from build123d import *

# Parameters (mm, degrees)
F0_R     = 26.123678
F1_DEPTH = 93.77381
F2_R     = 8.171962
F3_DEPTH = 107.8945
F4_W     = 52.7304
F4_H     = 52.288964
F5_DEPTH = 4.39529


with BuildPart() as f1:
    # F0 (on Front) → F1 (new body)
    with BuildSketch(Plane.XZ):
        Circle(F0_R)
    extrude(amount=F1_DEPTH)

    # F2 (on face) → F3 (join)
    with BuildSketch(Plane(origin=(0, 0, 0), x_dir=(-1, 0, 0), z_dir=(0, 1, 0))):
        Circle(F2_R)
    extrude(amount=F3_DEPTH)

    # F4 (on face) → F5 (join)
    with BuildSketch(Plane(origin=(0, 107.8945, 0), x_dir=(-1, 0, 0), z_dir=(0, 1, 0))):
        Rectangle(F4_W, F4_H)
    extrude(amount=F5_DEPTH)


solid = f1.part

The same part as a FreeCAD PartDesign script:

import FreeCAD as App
import Part
import Sketcher

V = App.Vector
Q = App.Units.Quantity


def add_polygon(sketch, points):
    """Adds a closed chain of lines whose ends are joined by coincident constraints."""
    first, n = sketch.GeometryCount, len(points)
    for a, b in zip(points, points[1:] + points[:1]):
        sketch.addGeometry(Part.LineSegment(App.Vector(*a, 0), App.Vector(*b, 0)), False)
    for i in range(n):
        sketch.addConstraint(Sketcher.Constraint("Coincident", first + i, 2, first + (i + 1) % n, 1))

doc = App.newDocument("Part")
body = doc.addObject("PartDesign::Body", "Body")

# Sketch on XZ plane
sketch1 = doc.addObject("Sketcher::SketchObject", "Sketch")
body.addObject(sketch1)
sketch1.AttachmentSupport = (doc.XZ_Plane, [""])
sketch1.MapMode = "FlatFace"
sketch1.addGeometry(Part.Circle(V(0, 0, 0), V(0, 0, 1), 26), False)
sketch1.addConstraint(Sketcher.Constraint("Coincident", 0, 3, -1, 1))
sketch1.addConstraint(Sketcher.Constraint("Diameter", 0, Q("52.247356 mm")))
pad1 = doc.addObject("PartDesign::Pad", "Pad")
body.addObject(pad1)
pad1.Profile = sketch1
pad1.Length = 93.77381

# Sketch on XZ plane
sketch2 = doc.addObject("Sketcher::SketchObject", "Sketch001")
body.addObject(sketch2)
sketch2.AttachmentSupport = (doc.XZ_Plane, [""])
sketch2.MapMode = "FlatFace"
sketch2.addGeometry(Part.Circle(V(0, 0, 0), V(0, 0, 1), 8), False)
sketch2.addConstraint(Sketcher.Constraint("Coincident", 0, 3, -1, 1))
sketch2.addConstraint(Sketcher.Constraint("Diameter", 0, Q("16.343924 mm")))
pad2 = doc.addObject("PartDesign::Pad", "Pad001")
body.addObject(pad2)
pad2.Profile = sketch2
pad2.Length = 107.8945
pad2.Reversed = True

# Sketch on XZ plane
sketch3 = doc.addObject("Sketcher::SketchObject", "Sketch002")
body.addObject(sketch3)
sketch3.AttachmentSupport = (doc.XZ_Plane, [""])
sketch3.MapMode = "FlatFace"
sketch3.AttachmentOffset = App.Placement(V(0, 0, -107.8945), App.Rotation())
add_polygon(sketch3, [(26, 26), (26, -26), (-26, -26), (-26, 26)])  # lines 0-3
sketch3.addConstraint(Sketcher.Constraint("Vertical", 0))
sketch3.addConstraint(Sketcher.Constraint("Horizontal", 1))
sketch3.addConstraint(Sketcher.Constraint("Vertical", 2))
sketch3.addConstraint(Sketcher.Constraint("Horizontal", 3))
sketch3.addConstraint(Sketcher.Constraint("Symmetric", 0, 2, 2, 2, -1, 1))
sketch3.addConstraint(Sketcher.Constraint("DistanceX", 1, 2, 1, 1, Q("2.076 in")))
sketch3.addConstraint(Sketcher.Constraint("DistanceY", 0, 2, 0, 1, Q("52.288964 mm")))
pad3 = doc.addObject("PartDesign::Pad", "Pad002")
body.addObject(pad3)
pad3.Profile = sketch3
pad3.Length = 4.39529
pad3.Reversed = True

doc.recompute()
